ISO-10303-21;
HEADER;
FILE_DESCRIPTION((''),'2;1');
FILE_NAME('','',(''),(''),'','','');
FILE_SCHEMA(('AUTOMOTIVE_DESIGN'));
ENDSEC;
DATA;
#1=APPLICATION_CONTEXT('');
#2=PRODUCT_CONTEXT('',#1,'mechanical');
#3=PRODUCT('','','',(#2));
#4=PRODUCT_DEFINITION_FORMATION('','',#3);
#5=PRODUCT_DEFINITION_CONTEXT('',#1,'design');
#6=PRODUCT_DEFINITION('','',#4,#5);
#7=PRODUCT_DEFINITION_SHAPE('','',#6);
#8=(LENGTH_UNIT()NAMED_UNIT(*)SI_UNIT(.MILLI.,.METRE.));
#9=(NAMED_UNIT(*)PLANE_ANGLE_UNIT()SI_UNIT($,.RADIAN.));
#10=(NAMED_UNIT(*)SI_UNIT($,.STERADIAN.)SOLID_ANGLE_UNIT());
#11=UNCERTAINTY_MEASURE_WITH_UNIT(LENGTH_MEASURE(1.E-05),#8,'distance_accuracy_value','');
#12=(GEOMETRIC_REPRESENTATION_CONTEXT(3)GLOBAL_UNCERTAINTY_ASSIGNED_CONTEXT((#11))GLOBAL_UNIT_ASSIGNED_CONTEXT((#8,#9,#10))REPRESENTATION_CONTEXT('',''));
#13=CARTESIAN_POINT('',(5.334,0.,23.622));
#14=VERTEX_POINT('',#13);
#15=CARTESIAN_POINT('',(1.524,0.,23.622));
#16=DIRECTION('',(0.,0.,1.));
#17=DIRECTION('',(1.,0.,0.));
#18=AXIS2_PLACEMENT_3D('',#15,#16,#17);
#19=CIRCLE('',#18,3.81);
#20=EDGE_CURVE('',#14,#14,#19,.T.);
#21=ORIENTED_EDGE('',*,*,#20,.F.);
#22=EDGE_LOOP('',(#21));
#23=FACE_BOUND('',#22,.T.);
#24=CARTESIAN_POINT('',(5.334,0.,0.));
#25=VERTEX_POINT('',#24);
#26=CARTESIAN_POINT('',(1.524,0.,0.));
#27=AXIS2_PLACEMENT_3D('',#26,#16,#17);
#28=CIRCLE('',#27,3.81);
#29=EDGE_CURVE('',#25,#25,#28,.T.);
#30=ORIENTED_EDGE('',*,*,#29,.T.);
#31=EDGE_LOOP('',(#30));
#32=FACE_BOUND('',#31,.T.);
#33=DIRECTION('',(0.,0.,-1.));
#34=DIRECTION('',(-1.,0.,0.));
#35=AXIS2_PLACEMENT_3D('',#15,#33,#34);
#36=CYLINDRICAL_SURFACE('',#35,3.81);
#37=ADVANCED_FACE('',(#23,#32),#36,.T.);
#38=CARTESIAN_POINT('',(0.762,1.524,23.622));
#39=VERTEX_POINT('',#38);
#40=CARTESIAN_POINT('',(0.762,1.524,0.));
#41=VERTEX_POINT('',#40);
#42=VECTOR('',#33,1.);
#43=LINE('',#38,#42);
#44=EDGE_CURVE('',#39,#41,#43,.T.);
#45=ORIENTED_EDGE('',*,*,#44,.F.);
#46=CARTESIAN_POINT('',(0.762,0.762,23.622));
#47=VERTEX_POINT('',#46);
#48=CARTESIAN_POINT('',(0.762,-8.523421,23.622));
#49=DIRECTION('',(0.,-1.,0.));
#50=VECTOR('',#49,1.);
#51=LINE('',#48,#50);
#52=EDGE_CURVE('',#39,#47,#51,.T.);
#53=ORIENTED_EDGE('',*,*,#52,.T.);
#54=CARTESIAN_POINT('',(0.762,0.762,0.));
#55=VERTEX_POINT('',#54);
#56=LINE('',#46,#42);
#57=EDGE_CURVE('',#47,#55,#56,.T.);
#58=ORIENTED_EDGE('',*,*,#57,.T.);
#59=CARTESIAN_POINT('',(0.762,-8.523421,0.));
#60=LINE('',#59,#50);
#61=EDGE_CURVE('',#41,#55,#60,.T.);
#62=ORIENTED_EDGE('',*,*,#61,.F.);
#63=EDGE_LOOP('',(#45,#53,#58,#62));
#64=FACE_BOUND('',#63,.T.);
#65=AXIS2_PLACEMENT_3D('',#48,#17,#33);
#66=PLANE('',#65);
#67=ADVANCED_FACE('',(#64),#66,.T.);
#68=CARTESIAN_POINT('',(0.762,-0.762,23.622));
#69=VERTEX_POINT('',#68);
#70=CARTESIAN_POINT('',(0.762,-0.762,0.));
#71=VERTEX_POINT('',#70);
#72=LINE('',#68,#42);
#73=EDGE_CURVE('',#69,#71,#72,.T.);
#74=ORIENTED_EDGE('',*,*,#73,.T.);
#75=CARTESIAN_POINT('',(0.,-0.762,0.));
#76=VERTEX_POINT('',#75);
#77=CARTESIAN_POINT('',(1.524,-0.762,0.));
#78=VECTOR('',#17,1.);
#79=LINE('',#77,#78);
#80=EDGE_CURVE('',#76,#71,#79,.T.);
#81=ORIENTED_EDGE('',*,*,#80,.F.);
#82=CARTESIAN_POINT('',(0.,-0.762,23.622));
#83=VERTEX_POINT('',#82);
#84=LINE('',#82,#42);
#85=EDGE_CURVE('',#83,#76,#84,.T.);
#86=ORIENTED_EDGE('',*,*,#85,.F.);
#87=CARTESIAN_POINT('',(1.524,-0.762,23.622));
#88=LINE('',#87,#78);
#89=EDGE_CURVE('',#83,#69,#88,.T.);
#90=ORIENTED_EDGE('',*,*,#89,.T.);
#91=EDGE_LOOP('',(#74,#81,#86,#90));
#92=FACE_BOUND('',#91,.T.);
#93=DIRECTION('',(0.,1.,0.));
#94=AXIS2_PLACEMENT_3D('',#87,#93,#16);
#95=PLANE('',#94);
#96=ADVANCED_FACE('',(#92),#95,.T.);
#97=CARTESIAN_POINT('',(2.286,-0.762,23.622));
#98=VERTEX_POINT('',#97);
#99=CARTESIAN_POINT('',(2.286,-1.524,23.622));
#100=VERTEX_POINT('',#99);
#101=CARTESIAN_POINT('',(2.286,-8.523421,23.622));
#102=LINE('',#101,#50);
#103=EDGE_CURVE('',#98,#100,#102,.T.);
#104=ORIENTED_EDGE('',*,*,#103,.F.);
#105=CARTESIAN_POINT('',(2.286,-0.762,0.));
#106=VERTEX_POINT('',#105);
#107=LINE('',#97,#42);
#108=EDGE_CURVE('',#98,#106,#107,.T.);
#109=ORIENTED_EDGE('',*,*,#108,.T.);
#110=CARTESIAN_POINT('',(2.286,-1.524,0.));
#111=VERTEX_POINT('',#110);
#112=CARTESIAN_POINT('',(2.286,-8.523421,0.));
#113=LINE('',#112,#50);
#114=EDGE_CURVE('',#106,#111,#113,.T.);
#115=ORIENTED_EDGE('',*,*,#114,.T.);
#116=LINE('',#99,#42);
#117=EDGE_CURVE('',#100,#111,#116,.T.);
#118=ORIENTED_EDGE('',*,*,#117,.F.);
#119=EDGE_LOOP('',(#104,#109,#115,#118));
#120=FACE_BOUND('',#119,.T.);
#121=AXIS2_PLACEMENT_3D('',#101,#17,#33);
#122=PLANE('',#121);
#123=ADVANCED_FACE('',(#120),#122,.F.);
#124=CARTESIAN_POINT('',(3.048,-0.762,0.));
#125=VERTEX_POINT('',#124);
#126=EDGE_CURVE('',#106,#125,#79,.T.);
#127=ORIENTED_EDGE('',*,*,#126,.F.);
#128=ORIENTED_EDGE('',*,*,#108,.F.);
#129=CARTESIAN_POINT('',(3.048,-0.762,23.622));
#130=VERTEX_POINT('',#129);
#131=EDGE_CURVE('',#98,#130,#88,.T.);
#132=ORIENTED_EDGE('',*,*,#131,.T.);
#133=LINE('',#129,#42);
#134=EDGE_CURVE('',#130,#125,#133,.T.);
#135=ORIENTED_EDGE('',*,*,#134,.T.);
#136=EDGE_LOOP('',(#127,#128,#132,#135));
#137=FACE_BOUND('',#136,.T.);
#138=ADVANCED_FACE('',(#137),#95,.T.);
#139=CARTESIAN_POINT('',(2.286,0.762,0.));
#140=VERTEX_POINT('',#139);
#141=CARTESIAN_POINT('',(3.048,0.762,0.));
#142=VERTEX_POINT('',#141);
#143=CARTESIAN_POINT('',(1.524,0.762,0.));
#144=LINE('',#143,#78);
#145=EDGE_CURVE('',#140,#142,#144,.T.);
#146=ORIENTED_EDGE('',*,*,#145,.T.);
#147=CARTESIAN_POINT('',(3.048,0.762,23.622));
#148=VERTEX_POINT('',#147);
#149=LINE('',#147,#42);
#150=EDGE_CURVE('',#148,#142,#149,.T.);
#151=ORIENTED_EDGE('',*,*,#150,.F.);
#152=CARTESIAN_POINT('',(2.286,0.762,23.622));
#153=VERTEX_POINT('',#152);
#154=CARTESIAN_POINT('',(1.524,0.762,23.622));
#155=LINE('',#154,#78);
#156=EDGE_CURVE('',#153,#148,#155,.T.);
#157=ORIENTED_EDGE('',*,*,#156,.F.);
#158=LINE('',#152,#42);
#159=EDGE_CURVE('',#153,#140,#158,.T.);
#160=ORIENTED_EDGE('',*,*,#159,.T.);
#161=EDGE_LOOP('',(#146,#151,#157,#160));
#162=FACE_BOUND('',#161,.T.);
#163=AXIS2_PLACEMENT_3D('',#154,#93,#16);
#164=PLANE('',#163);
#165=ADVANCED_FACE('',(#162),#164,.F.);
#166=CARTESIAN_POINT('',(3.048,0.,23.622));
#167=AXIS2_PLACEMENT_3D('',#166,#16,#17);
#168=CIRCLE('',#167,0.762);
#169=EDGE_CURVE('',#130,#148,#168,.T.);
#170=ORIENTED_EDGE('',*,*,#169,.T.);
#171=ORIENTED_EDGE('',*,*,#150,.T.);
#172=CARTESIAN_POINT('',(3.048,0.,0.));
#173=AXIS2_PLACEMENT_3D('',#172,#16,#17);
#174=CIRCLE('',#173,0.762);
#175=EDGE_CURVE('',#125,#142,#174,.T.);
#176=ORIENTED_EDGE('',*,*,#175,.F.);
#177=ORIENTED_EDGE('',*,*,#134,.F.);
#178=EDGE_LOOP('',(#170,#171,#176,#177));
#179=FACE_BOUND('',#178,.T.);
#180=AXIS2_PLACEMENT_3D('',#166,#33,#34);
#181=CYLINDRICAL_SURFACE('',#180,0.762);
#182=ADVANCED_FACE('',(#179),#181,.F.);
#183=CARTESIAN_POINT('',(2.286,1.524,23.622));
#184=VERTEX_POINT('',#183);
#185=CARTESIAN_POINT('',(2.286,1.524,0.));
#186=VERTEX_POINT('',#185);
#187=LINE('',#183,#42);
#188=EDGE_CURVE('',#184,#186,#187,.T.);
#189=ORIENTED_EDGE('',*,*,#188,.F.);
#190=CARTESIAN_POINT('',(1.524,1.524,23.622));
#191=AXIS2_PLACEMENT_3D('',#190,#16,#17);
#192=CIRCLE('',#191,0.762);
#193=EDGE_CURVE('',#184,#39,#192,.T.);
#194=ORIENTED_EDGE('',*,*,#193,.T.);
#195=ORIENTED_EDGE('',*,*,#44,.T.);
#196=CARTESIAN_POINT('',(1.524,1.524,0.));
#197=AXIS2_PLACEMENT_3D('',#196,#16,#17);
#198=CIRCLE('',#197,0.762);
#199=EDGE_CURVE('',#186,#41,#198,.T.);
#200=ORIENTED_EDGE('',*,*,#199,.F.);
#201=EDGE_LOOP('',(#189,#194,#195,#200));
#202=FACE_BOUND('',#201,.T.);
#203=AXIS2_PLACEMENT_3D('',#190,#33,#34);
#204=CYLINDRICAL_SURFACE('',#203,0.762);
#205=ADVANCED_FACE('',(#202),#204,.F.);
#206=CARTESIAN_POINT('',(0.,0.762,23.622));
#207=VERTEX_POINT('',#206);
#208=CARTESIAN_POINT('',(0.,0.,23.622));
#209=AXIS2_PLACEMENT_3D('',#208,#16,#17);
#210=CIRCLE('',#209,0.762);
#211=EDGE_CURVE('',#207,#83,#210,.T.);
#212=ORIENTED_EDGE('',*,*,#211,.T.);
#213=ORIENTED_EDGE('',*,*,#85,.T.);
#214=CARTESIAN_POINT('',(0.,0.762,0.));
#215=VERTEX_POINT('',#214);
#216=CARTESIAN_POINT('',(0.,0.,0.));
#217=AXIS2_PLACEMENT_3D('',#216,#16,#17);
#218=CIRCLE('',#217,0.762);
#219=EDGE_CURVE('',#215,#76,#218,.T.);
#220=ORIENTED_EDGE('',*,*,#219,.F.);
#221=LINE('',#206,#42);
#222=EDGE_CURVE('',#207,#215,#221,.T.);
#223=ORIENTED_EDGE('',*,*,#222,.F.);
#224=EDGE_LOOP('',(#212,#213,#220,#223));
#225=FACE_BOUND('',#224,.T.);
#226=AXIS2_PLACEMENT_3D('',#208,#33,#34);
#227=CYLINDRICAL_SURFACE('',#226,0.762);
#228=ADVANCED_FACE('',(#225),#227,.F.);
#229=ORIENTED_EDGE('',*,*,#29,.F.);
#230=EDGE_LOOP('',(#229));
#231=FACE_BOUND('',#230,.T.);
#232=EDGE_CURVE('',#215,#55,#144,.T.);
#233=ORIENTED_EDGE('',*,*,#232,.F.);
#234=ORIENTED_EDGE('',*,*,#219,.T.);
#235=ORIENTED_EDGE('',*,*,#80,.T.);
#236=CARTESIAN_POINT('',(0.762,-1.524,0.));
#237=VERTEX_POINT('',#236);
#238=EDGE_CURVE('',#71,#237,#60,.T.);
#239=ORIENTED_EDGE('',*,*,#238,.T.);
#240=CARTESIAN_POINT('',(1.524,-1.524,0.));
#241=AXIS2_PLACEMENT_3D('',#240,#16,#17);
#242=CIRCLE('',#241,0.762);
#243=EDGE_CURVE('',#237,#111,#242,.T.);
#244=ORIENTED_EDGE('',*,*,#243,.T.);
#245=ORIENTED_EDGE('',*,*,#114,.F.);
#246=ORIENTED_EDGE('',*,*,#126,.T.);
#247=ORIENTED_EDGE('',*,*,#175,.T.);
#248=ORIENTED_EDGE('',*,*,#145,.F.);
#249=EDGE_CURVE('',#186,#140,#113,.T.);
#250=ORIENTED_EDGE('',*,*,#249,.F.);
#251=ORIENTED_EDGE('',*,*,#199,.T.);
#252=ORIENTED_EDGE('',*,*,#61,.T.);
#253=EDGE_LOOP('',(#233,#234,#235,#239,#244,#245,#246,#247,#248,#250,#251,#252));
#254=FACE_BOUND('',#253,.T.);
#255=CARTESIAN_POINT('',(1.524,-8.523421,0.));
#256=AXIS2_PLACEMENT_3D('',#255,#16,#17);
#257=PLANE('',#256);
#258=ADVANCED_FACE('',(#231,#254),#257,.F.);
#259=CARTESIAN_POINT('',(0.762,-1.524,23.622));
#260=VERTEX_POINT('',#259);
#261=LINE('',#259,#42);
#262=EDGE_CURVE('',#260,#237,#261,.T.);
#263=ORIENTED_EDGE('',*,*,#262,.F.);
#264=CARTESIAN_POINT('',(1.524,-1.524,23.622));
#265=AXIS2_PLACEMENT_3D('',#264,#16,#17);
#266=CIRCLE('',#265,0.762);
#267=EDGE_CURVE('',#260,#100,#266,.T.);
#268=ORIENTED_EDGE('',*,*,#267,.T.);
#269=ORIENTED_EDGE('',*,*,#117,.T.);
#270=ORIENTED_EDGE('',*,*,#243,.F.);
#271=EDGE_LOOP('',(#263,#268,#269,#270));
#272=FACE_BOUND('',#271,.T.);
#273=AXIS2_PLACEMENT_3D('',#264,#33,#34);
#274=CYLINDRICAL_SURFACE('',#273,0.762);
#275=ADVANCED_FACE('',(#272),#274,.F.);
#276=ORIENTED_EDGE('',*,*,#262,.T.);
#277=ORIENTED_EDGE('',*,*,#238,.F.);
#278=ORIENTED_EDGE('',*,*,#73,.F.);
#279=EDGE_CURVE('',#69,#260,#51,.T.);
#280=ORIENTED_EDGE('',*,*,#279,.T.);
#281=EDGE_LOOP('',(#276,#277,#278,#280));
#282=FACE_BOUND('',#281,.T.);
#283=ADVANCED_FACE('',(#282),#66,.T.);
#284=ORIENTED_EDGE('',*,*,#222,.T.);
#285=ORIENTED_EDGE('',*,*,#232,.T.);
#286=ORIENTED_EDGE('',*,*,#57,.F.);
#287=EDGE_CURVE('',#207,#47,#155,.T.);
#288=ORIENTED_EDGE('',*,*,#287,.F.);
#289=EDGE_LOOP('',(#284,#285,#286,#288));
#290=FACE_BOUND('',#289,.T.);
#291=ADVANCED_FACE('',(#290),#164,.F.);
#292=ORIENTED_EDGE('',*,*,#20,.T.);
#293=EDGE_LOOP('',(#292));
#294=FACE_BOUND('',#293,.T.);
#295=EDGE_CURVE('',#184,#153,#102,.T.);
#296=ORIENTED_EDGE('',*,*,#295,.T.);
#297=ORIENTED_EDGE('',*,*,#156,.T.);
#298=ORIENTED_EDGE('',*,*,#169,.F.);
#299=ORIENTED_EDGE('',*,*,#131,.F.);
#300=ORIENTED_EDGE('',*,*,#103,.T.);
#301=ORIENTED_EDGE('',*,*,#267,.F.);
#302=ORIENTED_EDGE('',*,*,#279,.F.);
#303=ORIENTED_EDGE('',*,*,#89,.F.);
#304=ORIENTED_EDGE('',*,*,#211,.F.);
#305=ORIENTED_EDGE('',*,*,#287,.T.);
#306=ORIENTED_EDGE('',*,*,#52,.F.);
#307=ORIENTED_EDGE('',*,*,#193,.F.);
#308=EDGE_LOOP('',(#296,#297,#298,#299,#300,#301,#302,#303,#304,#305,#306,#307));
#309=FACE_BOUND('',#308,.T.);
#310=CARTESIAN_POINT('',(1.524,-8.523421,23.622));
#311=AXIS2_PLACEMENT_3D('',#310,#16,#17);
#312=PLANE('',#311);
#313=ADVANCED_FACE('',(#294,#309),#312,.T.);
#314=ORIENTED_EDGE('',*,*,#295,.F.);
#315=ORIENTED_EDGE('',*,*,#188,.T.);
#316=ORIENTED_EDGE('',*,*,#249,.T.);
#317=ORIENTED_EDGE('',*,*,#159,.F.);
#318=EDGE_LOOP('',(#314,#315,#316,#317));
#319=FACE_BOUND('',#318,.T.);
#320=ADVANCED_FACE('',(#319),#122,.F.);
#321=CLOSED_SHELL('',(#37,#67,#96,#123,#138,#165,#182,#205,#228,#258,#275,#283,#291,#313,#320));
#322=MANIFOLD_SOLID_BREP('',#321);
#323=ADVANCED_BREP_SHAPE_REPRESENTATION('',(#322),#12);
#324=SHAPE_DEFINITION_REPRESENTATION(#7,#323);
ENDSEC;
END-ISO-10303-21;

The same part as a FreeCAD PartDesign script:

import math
import FreeCAD as App
import Part
import Sketcher

V = App.Vector
Q = App.Units.Quantity

doc = App.newDocument("Part")
body = doc.addObject("PartDesign::Body", "Body")

# Sketch on XY plane
sketch1 = body.newObject("Sketcher::SketchObject", "Sketch")
sketch1.AttachmentSupport = (doc.getObject("XY_Plane"), [""])
sketch1.MapMode = "FlatFace"
sketch1.addGeometry([
    Part.Circle(V(1.5, 0, 0), V(0, 0, 1), 3.8),  # 0
    Part.LineSegment(V(0.8, -0.8, 0), V(0, -0.8, 0)),  # 1
    Part.ArcOfCircle(Part.Circle(V(0, 0, 0), V(0, 0, 1), 0.8), math.radians(90), math.radians(270)),  # 2
    Part.LineSegment(V(0, 0.8, 0), V(0.8, 0.8, 0)),  # 3
    Part.LineSegment(V(0.8, 0.8, 0), V(0.8, 1.5, 0)),  # 4
    Part.ArcOfCircle(Part.Circle(V(1.5, 1.5, 0), V(0, 0, 1), 0.8), math.radians(0), math.radians(180)),  # 5
    Part.LineSegment(V(2.3, 1.5, 0), V(2.3, 0.8, 0)),  # 6
    Part.LineSegment(V(2.3, 0.8, 0), V(3, 0.8, 0)),  # 7
    Part.ArcOfCircle(Part.Circle(V(3, 0, 0), V(0, 0, 1), 0.8), math.radians(-90), math.radians(90)),  # 8
    Part.LineSegment(V(3, -0.8, 0), V(2.3, -0.8, 0)),  # 9
    Part.LineSegment(V(2.3, -0.8, 0), V(2.3, -1.5, 0)),  # 10
    Part.ArcOfCircle(Part.Circle(V(1.5, -1.5, 0), V(0, 0, 1), 0.8), math.radians(180), math.radians(360)),  # 11
    Part.LineSegment(V(0.8, -1.5, 0), V(0.8, -0.8, 0)),  # 12
], False)
sketch1.addConstraint([
    Sketcher.Constraint("Tangent", 1, 2, 2, 2),
    Sketcher.Constraint("Tangent", 2, 1, 3, 1),
    Sketcher.Constraint("Coincident", 3, 2, 4, 1),
    Sketcher.Constraint("Tangent", 4, 2, 5, 2),
    Sketcher.Constraint("Tangent", 5, 1, 6, 1),
    Sketcher.Constraint("Coincident", 6, 2, 7, 1),
    Sketcher.Constraint("Tangent", 7, 2, 8, 2),
    Sketcher.Constraint("Tangent", 8, 1, 9, 1),
    Sketcher.Constraint("Coincident", 9, 2, 10, 1),
    Sketcher.Constraint("Tangent", 10, 2, 11, 2),
    Sketcher.Constraint("Tangent", 11, 1, 12, 1),
    Sketcher.Constraint("Coincident", 12, 2, 1, 1),
    Sketcher.Constraint("Horizontal", 1),
    Sketcher.Constraint("Horizontal", 3),
    Sketcher.Constraint("Vertical", 4),
    Sketcher.Constraint("Vertical", 6),
    Sketcher.Constraint("Horizontal", 7),
    Sketcher.Constraint("Horizontal", 9),
    Sketcher.Constraint("Vertical", 10),
    Sketcher.Constraint("Vertical", 12),
    Sketcher.Constraint("Coincident", 2, 3, -1, 1),
    Sketcher.Constraint("Equal", 2, 5),
    Sketcher.Constraint("Equal", 5, 8),
    Sketcher.Constraint("Equal", 8, 11),
    Sketcher.Constraint("Symmetric", 5, 3, 11, 3, -1),
    Sketcher.Constraint("PointOnObject", 0, 3, -1),
    Sketcher.Constraint("PointOnObject", 8, 3, -1),
    Sketcher.Constraint("Vertical", 0, 3, 5, 3),
    Sketcher.Constraint("Equal", 3, 7),
    Sketcher.Constraint("Equal", 9, 4),
    Sketcher.Constraint("Diameter", 0, Q("0.3 in")),
    Sketcher.Constraint("Radius", 2, Q("0.03 in")),
    Sketcher.Constraint("DistanceX", 1, 2, 1, 1, Q("0.03 in")),
])
pad1 = body.newObject("PartDesign::Pad", "Pad")
pad1.Profile = sketch1
pad1.Length = Q("0.93 in")

doc.recompute()
